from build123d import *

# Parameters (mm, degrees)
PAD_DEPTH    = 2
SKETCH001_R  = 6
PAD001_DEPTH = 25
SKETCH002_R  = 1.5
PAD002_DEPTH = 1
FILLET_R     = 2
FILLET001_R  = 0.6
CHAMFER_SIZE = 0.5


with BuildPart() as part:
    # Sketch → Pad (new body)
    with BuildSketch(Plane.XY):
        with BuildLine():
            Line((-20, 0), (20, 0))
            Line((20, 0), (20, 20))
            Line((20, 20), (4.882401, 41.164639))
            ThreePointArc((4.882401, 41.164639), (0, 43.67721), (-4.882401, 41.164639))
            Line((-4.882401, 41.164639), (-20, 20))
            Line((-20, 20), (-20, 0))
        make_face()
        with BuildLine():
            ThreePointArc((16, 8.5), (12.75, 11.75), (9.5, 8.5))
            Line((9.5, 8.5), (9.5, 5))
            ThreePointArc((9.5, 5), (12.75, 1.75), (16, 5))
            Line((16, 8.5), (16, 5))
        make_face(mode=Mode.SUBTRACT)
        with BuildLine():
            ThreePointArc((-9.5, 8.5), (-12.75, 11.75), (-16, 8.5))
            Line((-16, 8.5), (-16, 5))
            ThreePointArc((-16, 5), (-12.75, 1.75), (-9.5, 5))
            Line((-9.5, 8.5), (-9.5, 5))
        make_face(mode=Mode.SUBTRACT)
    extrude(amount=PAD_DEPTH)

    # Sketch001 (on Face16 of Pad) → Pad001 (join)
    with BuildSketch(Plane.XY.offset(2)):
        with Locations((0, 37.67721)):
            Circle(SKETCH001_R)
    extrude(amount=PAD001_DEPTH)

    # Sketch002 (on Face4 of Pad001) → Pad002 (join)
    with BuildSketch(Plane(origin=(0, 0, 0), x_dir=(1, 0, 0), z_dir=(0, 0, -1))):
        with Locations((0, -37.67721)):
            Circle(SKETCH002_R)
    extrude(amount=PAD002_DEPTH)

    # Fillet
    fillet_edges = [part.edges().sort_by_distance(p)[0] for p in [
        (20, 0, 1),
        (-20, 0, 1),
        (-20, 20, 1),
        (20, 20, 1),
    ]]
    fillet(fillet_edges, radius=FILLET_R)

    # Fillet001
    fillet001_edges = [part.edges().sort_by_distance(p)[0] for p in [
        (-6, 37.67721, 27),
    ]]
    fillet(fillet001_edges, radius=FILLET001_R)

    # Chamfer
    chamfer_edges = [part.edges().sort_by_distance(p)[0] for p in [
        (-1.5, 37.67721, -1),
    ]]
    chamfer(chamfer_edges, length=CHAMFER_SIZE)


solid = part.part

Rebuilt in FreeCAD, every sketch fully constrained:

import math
import FreeCAD as App
import Part
import Sketcher
from FreeCAD import Vector
Q = App.Units.Quantity


def edges_at(feature, points):
    """Names of the edges that pass closest to the given points."""
    edges = feature.Shape.Edges
    near = lambda p: min(range(len(edges)), key=lambda i: edges[i].distToShape(Part.Vertex(*p))[0])
    return sorted({f"Edge{near(p) + 1}" for p in points})

doc = App.newDocument("Part")
body = doc.addObject("PartDesign::Body", "Body")

sketch1 = body.newObject("Sketcher::SketchObject", "Sketch")
sketch1.AttachmentSupport = (doc.getObject("XY_Plane"), [""])
sketch1.MapMode = "FlatFace"
sketch1.addGeometry([
    Part.LineSegment(Vector(-20, 0, 0), Vector(20, 0, 0)),
    Part.LineSegment(Vector(20, 0, 0), Vector(20, 20, 0)),
    Part.LineSegment(Vector(20, 20, 0), Vector(4.9, 41.2, 0)),
    Part.ArcOfCircle(Part.Circle(Vector(0, 37.7, 0), Vector(0, 0, 1), 6), math.radians(36), math.radians(144)),
    Part.LineSegment(Vector(-4.9, 41.2, 0), Vector(-20, 20, 0)),
    Part.LineSegment(Vector(-20, 20, 0), Vector(-20, 0, 0)),
    Part.ArcOfCircle(Part.Circle(Vector(-12.8, 8.5, 0), Vector(0, 0, 1), 3.2), math.radians(0), math.radians(180)),
    Part.LineSegment(Vector(-9.5, 8.5, 0), Vector(-9.5, 5, 0)),
    Part.ArcOfCircle(Part.Circle(Vector(-12.8, 5, 0), Vector(0, 0, 1), 3.2), math.radians(180), math.radians(360)),
    Part.LineSegment(Vector(-16, 5, 0), Vector(-16, 8.5, 0)),
    Part.ArcOfCircle(Part.Circle(Vector(12.8, 8.5, 0), Vector(0, 0, 1), 3.2), math.radians(0), math.radians(180)),
    Part.LineSegment(Vector(16, 8.5, 0), Vector(16, 5, 0)),
    Part.ArcOfCircle(Part.Circle(Vector(12.8, 5, 0), Vector(0, 0, 1), 3.2), math.radians(180), math.radians(360)),
    Part.LineSegment(Vector(9.5, 5, 0), Vector(9.5, 8.5, 0)),
], False)
sketch1.addConstraint([
    Sketcher.Constraint("Coincident", 0, 2, 1, 1),
    Sketcher.Constraint("Coincident", 1, 2, 2, 1),
    Sketcher.Constraint("Tangent", 2, 2, 3, 1),
    Sketcher.Constraint("Tangent", 3, 2, 4, 1),
    Sketcher.Constraint("Coincident", 4, 2, 5, 1),
    Sketcher.Constraint("Coincident", 5, 2, 0, 1),
    Sketcher.Constraint("Tangent", 6, 1, 7, 1),
    Sketcher.Constraint("Tangent", 7, 2, 8, 2),
    Sketcher.Constraint("Tangent", 8, 1, 9, 1),
    Sketcher.Constraint("Tangent", 9, 2, 6, 2),
    Sketcher.Constraint("Tangent", 10, 1, 11, 1),
    Sketcher.Constraint("Tangent", 11, 2, 12, 2),
    Sketcher.Constraint("Tangent", 12, 1, 13, 1),
    Sketcher.Constraint("Tangent", 13, 2, 10, 2),
    Sketcher.Constraint("Horizontal", 0),
    Sketcher.Constraint("Vertical", 1),
    Sketcher.Constraint("Vertical", 5),
    Sketcher.Constraint("Vertical", 7),
    Sketcher.Constraint("Vertical", 9),
    Sketcher.Constraint("Vertical", 11),
    Sketcher.Constraint("Vertical", 13),
    Sketcher.Constraint("Equal", 8, 10),
    Sketcher.Constraint("Symmetric", 0, 2, 5, 2, -1, 1),
    Sketcher.Constraint("Symmetric", 6, 3, 10, 3, -2),
    Sketcher.Constraint("Symmetric", 2, 2, 3, 2, -2),
    Sketcher.Constraint("Horizontal", 8, 3, 12, 3),
    Sketcher.Constraint("Radius", 3, Q("6 mm")),
    Sketcher.Constraint("DistanceX", 0, 1, 0, 2, Q("40 mm")),
    Sketcher.Constraint("DistanceY", 1, 1, 1, 2, Q("20 mm")),
    Sketcher.Constraint("Radius", 6, Q("3.25 mm")),
    Sketcher.Constraint("DistanceY", 7, 2, 7, 1, Q("3.5 mm")),
    Sketcher.Constraint("DistanceY", -1, 1, 8, 3, Q("5 mm")),
    Sketcher.Constraint("DistanceX", 8, 1, -1, 1, Q("16 mm")),
    Sketcher.Constraint("Distance", 2, Q("26.009301 mm")),
])
pad1 = body.newObject("PartDesign::Pad", "Pad")
pad1.Profile = sketch1
pad1.Length = 2

sketch2 = body.newObject("Sketcher::SketchObject", "Sketch001")
sketch2.AttachmentSupport = (doc.getObject("XY_Plane"), [""])
sketch2.MapMode = "FlatFace"
sketch2.AttachmentOffset = App.Placement(Vector(0, 0, 2), App.Rotation())
sketch2.addGeometry(Part.Circle(Vector(0, 38, 0), Vector(0, 0, 1), 6), False)
sketch2.addConstraint([
    Sketcher.Constraint("PointOnObject", 0, 3, -2),
    Sketcher.Constraint("Diameter", 0, Q("12 mm")),
    Sketcher.Constraint("DistanceY", -1, 1, 0, 3, Q("37.67721 mm")),
])
pad2 = body.newObject("PartDesign::Pad", "Pad001")
pad2.Profile = sketch2
pad2.Length = 25

sketch3 = body.newObject("Sketcher::SketchObject", "Sketch002")
sketch3.AttachmentSupport = (doc.getObject("XY_Plane"), [""])
sketch3.MapMode = "FlatFace"
sketch3.addGeometry(Part.Circle(Vector(0, 37.7, 0), Vector(0, 0, 1), 1.5), False)
sketch3.addConstraint([
    Sketcher.Constraint("PointOnObject", 0, 3, -2),
    Sketcher.Constraint("Diameter", 0, Q("3 mm")),
    Sketcher.Constraint("DistanceY", -1, 1, 0, 3, Q("37.67721 mm")),
])
pad3 = body.newObject("PartDesign::Pad", "Pad002")
pad3.Profile = sketch3
pad3.Length = 1
pad3.Reversed = True
doc.recompute()

fillet = body.newObject("PartDesign::Fillet", "Fillet")
fillet.Base = (pad3, edges_at(pad3, [
    (20, 0, 1),
    (-20, 0, 1),
    (-20, 20, 1),
    (20, 20, 1),
]))
fillet.Radius = 2
doc.recompute()

fillet2 = body.newObject("PartDesign::Fillet", "Fillet001")
fillet2.Base = (fillet, edges_at(fillet, [(-6, 37.677, 27)]))
fillet2.Radius = 0.6
doc.recompute()

chamfer = body.newObject("PartDesign::Chamfer", "Chamfer")
chamfer.Base = (fillet2, edges_at(fillet2, [(-1.5, 37.677, -1)]))
chamfer.Size = 0.5

doc.recompute()
